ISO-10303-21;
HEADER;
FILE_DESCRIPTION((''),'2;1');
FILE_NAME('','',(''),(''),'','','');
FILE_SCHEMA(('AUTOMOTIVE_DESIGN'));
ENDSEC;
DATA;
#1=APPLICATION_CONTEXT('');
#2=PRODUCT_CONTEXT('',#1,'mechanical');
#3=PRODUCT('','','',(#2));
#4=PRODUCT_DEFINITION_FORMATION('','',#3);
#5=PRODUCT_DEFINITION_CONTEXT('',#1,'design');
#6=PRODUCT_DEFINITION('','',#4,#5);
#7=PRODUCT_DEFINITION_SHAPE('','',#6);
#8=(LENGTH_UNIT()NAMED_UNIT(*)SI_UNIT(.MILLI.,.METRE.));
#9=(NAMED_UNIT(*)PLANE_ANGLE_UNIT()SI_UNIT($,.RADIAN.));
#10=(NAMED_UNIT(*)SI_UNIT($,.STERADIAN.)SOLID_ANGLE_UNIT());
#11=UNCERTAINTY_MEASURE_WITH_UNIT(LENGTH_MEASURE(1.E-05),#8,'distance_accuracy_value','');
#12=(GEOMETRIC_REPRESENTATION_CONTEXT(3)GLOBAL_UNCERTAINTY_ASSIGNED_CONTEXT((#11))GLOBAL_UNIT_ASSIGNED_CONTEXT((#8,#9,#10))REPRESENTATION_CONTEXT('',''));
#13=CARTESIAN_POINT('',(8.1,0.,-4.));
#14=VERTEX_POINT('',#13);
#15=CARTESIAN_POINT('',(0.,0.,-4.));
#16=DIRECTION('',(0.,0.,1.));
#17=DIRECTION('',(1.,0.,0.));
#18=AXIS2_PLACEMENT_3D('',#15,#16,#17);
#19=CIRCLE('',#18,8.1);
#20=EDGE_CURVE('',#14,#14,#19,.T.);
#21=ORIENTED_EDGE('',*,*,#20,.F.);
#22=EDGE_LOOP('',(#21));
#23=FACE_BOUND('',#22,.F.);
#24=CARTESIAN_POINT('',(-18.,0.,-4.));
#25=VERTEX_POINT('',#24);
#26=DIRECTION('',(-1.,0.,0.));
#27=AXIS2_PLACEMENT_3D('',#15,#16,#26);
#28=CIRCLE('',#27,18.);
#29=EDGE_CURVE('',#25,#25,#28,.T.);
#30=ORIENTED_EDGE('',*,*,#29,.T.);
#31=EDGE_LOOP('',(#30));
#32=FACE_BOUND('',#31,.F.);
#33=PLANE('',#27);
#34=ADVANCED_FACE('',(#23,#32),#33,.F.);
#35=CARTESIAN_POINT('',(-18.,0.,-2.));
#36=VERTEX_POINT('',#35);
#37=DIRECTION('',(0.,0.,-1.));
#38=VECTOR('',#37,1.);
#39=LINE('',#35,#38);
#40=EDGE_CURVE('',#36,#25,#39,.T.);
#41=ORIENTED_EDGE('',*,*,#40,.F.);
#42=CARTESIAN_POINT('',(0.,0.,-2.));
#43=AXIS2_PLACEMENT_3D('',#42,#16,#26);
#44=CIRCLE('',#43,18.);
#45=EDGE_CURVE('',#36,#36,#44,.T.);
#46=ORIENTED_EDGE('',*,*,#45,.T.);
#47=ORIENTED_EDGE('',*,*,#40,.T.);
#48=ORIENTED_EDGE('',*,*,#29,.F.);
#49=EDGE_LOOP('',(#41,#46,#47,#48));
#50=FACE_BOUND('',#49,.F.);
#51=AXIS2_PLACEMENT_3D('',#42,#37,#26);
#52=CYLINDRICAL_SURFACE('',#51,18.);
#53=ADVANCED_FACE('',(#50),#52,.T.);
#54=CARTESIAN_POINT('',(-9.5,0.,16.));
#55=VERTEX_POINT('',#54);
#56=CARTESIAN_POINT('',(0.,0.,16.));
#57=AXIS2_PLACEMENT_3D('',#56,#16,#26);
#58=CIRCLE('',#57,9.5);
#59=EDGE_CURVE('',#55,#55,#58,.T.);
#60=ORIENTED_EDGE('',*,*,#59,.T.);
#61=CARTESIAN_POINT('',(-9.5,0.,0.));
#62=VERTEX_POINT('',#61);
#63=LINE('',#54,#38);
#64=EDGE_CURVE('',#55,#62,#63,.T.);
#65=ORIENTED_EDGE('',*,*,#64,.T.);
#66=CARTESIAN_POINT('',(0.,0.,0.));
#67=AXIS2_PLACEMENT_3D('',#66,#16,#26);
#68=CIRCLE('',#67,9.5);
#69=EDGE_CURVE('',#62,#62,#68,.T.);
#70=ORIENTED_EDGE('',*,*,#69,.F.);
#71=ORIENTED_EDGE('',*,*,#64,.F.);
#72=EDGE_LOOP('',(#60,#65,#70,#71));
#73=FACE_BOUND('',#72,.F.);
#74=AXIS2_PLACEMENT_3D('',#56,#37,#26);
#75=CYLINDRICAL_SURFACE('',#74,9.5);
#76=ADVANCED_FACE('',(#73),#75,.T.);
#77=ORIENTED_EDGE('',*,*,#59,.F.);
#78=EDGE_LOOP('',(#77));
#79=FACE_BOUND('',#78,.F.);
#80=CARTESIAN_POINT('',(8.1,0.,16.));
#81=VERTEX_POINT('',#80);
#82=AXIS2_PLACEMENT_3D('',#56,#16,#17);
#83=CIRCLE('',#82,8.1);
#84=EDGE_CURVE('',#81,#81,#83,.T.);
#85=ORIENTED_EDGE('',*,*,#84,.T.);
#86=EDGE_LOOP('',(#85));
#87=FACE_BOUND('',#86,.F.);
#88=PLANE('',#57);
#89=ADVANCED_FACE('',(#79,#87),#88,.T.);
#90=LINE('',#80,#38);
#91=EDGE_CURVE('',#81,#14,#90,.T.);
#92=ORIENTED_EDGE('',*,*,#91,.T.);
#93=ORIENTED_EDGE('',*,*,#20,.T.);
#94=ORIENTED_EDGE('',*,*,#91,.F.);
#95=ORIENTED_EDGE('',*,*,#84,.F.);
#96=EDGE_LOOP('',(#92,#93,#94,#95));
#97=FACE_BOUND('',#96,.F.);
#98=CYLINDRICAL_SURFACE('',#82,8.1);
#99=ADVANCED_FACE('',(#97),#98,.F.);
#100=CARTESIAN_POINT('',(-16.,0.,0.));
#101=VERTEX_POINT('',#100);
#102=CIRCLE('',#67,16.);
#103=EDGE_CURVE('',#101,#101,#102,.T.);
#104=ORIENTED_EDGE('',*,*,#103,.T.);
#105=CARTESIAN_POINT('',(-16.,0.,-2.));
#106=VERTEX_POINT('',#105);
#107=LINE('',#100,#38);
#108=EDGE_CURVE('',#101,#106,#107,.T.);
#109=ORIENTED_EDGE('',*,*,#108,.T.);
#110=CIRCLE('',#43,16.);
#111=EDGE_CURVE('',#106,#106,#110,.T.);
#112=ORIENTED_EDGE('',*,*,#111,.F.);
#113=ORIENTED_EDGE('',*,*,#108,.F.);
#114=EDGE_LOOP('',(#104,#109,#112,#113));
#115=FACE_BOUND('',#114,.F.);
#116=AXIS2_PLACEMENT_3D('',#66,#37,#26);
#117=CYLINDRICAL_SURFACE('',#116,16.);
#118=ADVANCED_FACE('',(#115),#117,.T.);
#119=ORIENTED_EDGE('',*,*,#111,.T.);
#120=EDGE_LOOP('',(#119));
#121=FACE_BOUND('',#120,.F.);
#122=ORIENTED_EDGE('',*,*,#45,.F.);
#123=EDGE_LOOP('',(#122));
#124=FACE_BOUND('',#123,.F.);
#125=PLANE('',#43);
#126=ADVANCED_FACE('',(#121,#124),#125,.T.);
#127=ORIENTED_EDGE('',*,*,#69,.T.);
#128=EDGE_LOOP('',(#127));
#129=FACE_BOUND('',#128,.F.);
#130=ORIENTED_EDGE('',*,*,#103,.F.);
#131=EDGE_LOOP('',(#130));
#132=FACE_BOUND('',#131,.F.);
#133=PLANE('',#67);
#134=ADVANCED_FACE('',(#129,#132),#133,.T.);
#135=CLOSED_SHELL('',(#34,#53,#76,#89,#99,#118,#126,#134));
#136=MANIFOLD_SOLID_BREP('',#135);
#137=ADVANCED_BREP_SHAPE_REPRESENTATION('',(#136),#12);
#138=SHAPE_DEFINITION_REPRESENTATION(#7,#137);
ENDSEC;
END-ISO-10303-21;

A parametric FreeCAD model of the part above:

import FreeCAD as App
import Part
import Sketcher
Q = App.Units.Quantity

doc = App.newDocument("Part")
body = doc.addObject("PartDesign::Body", "Body")

sketch1 = body.newObject("Sketcher::SketchObject", "Sketch")
sketch1.AttachmentSupport = (doc.getObject("XZ_Plane"), [""])
sketch1.MapMode = "FlatFace"
sketch1.addGeometry([
    Part.LineSegment(App.Vector(0, -4, 0), App.Vector(0, 16, 0)),
    Part.LineSegment(App.Vector(0, 16, 0), App.Vector(-9.5, 16, 0)),
    Part.LineSegment(App.Vector(-9.5, 16, 0), App.Vector(-9.5, 0, 0)),
    Part.LineSegment(App.Vector(-9.5, 0, 0), App.Vector(-16, 0, 0)),
    Part.LineSegment(App.Vector(-16, 0, 0), App.Vector(-16, -2, 0)),
    Part.LineSegment(App.Vector(-16, -2, 0), App.Vector(-18, -2, 0)),
    Part.LineSegment(App.Vector(-18, -2, 0), App.Vector(-18, -4, 0)),
    Part.LineSegment(App.Vector(-18, -4, 0), App.Vector(0, -4, 0)),
], False)
sketch1.addConstraint([
    Sketcher.Constraint("Coincident", 0, 2, 1, 1),
    Sketcher.Constraint("Coincident", 1, 2, 2, 1),
    Sketcher.Constraint("Coincident", 2, 2, 3, 1),
    Sketcher.Constraint("Coincident", 3, 2, 4, 1),
    Sketcher.Constraint("Coincident", 4, 2, 5, 1),
    Sketcher.Constraint("Coincident", 5, 2, 6, 1),
    Sketcher.Constraint("Coincident", 6, 2, 7, 1),
    Sketcher.Constraint("Coincident", 7, 2, 0, 1),
    Sketcher.Constraint("Vertical", 0),
    Sketcher.Constraint("Horizontal", 1),
    Sketcher.Constraint("Vertical", 2),
    Sketcher.Constraint("Horizontal", 3),
    Sketcher.Constraint("Vertical", 4),
    Sketcher.Constraint("Horizontal", 5),
    Sketcher.Constraint("Vertical", 6),
    Sketcher.Constraint("Horizontal", 7),
    Sketcher.Constraint("PointOnObject", 0, 2, -2),
    Sketcher.Constraint("PointOnObject", 2, 2, -1),
    Sketcher.Constraint("Equal", 5, 4),
    Sketcher.Constraint("Equal", 4, 6),
    Sketcher.Constraint("DistanceX", 5, 2, 5, 1, Q("2 mm")),
    Sketcher.Constraint("DistanceX", 7, 1, 7, 2, Q("18 mm")),
    Sketcher.Constraint("DistanceY", 0, 1, 0, 2, Q("20 mm")),
    Sketcher.Constraint("DistanceX", 1, 2, 1, 1, Q("9.5 mm")),
])
revolution = body.newObject("PartDesign::Revolution", "Revolution")
revolution.Profile = sketch1
revolution.ReferenceAxis = (sketch1, ["V_Axis"])
revolution.Angle = 360

sketch2 = body.newObject("Sketcher::SketchObject", "Sketch001")
sketch2.AttachmentSupport = (doc.getObject("XY_Plane"), [""])
sketch2.MapMode = "FlatFace"
sketch2.AttachmentOffset = App.Placement(App.Vector(0, 0, 16), App.Rotation())
sketch2.addGeometry(Part.Circle(App.Vector(0, 0, 0), App.Vector(0, 0, 1), 8), False)
sketch2.addConstraint([
    Sketcher.Constraint("Coincident", 0, 3, -1, 1),
    Sketcher.Constraint("Diameter", 0, Q("16.2 mm")),
])
pocket1 = body.newObject("PartDesign::Pocket", "Pocket")
pocket1.Profile = sketch2
pocket1.Length = 40

doc.recompute()
